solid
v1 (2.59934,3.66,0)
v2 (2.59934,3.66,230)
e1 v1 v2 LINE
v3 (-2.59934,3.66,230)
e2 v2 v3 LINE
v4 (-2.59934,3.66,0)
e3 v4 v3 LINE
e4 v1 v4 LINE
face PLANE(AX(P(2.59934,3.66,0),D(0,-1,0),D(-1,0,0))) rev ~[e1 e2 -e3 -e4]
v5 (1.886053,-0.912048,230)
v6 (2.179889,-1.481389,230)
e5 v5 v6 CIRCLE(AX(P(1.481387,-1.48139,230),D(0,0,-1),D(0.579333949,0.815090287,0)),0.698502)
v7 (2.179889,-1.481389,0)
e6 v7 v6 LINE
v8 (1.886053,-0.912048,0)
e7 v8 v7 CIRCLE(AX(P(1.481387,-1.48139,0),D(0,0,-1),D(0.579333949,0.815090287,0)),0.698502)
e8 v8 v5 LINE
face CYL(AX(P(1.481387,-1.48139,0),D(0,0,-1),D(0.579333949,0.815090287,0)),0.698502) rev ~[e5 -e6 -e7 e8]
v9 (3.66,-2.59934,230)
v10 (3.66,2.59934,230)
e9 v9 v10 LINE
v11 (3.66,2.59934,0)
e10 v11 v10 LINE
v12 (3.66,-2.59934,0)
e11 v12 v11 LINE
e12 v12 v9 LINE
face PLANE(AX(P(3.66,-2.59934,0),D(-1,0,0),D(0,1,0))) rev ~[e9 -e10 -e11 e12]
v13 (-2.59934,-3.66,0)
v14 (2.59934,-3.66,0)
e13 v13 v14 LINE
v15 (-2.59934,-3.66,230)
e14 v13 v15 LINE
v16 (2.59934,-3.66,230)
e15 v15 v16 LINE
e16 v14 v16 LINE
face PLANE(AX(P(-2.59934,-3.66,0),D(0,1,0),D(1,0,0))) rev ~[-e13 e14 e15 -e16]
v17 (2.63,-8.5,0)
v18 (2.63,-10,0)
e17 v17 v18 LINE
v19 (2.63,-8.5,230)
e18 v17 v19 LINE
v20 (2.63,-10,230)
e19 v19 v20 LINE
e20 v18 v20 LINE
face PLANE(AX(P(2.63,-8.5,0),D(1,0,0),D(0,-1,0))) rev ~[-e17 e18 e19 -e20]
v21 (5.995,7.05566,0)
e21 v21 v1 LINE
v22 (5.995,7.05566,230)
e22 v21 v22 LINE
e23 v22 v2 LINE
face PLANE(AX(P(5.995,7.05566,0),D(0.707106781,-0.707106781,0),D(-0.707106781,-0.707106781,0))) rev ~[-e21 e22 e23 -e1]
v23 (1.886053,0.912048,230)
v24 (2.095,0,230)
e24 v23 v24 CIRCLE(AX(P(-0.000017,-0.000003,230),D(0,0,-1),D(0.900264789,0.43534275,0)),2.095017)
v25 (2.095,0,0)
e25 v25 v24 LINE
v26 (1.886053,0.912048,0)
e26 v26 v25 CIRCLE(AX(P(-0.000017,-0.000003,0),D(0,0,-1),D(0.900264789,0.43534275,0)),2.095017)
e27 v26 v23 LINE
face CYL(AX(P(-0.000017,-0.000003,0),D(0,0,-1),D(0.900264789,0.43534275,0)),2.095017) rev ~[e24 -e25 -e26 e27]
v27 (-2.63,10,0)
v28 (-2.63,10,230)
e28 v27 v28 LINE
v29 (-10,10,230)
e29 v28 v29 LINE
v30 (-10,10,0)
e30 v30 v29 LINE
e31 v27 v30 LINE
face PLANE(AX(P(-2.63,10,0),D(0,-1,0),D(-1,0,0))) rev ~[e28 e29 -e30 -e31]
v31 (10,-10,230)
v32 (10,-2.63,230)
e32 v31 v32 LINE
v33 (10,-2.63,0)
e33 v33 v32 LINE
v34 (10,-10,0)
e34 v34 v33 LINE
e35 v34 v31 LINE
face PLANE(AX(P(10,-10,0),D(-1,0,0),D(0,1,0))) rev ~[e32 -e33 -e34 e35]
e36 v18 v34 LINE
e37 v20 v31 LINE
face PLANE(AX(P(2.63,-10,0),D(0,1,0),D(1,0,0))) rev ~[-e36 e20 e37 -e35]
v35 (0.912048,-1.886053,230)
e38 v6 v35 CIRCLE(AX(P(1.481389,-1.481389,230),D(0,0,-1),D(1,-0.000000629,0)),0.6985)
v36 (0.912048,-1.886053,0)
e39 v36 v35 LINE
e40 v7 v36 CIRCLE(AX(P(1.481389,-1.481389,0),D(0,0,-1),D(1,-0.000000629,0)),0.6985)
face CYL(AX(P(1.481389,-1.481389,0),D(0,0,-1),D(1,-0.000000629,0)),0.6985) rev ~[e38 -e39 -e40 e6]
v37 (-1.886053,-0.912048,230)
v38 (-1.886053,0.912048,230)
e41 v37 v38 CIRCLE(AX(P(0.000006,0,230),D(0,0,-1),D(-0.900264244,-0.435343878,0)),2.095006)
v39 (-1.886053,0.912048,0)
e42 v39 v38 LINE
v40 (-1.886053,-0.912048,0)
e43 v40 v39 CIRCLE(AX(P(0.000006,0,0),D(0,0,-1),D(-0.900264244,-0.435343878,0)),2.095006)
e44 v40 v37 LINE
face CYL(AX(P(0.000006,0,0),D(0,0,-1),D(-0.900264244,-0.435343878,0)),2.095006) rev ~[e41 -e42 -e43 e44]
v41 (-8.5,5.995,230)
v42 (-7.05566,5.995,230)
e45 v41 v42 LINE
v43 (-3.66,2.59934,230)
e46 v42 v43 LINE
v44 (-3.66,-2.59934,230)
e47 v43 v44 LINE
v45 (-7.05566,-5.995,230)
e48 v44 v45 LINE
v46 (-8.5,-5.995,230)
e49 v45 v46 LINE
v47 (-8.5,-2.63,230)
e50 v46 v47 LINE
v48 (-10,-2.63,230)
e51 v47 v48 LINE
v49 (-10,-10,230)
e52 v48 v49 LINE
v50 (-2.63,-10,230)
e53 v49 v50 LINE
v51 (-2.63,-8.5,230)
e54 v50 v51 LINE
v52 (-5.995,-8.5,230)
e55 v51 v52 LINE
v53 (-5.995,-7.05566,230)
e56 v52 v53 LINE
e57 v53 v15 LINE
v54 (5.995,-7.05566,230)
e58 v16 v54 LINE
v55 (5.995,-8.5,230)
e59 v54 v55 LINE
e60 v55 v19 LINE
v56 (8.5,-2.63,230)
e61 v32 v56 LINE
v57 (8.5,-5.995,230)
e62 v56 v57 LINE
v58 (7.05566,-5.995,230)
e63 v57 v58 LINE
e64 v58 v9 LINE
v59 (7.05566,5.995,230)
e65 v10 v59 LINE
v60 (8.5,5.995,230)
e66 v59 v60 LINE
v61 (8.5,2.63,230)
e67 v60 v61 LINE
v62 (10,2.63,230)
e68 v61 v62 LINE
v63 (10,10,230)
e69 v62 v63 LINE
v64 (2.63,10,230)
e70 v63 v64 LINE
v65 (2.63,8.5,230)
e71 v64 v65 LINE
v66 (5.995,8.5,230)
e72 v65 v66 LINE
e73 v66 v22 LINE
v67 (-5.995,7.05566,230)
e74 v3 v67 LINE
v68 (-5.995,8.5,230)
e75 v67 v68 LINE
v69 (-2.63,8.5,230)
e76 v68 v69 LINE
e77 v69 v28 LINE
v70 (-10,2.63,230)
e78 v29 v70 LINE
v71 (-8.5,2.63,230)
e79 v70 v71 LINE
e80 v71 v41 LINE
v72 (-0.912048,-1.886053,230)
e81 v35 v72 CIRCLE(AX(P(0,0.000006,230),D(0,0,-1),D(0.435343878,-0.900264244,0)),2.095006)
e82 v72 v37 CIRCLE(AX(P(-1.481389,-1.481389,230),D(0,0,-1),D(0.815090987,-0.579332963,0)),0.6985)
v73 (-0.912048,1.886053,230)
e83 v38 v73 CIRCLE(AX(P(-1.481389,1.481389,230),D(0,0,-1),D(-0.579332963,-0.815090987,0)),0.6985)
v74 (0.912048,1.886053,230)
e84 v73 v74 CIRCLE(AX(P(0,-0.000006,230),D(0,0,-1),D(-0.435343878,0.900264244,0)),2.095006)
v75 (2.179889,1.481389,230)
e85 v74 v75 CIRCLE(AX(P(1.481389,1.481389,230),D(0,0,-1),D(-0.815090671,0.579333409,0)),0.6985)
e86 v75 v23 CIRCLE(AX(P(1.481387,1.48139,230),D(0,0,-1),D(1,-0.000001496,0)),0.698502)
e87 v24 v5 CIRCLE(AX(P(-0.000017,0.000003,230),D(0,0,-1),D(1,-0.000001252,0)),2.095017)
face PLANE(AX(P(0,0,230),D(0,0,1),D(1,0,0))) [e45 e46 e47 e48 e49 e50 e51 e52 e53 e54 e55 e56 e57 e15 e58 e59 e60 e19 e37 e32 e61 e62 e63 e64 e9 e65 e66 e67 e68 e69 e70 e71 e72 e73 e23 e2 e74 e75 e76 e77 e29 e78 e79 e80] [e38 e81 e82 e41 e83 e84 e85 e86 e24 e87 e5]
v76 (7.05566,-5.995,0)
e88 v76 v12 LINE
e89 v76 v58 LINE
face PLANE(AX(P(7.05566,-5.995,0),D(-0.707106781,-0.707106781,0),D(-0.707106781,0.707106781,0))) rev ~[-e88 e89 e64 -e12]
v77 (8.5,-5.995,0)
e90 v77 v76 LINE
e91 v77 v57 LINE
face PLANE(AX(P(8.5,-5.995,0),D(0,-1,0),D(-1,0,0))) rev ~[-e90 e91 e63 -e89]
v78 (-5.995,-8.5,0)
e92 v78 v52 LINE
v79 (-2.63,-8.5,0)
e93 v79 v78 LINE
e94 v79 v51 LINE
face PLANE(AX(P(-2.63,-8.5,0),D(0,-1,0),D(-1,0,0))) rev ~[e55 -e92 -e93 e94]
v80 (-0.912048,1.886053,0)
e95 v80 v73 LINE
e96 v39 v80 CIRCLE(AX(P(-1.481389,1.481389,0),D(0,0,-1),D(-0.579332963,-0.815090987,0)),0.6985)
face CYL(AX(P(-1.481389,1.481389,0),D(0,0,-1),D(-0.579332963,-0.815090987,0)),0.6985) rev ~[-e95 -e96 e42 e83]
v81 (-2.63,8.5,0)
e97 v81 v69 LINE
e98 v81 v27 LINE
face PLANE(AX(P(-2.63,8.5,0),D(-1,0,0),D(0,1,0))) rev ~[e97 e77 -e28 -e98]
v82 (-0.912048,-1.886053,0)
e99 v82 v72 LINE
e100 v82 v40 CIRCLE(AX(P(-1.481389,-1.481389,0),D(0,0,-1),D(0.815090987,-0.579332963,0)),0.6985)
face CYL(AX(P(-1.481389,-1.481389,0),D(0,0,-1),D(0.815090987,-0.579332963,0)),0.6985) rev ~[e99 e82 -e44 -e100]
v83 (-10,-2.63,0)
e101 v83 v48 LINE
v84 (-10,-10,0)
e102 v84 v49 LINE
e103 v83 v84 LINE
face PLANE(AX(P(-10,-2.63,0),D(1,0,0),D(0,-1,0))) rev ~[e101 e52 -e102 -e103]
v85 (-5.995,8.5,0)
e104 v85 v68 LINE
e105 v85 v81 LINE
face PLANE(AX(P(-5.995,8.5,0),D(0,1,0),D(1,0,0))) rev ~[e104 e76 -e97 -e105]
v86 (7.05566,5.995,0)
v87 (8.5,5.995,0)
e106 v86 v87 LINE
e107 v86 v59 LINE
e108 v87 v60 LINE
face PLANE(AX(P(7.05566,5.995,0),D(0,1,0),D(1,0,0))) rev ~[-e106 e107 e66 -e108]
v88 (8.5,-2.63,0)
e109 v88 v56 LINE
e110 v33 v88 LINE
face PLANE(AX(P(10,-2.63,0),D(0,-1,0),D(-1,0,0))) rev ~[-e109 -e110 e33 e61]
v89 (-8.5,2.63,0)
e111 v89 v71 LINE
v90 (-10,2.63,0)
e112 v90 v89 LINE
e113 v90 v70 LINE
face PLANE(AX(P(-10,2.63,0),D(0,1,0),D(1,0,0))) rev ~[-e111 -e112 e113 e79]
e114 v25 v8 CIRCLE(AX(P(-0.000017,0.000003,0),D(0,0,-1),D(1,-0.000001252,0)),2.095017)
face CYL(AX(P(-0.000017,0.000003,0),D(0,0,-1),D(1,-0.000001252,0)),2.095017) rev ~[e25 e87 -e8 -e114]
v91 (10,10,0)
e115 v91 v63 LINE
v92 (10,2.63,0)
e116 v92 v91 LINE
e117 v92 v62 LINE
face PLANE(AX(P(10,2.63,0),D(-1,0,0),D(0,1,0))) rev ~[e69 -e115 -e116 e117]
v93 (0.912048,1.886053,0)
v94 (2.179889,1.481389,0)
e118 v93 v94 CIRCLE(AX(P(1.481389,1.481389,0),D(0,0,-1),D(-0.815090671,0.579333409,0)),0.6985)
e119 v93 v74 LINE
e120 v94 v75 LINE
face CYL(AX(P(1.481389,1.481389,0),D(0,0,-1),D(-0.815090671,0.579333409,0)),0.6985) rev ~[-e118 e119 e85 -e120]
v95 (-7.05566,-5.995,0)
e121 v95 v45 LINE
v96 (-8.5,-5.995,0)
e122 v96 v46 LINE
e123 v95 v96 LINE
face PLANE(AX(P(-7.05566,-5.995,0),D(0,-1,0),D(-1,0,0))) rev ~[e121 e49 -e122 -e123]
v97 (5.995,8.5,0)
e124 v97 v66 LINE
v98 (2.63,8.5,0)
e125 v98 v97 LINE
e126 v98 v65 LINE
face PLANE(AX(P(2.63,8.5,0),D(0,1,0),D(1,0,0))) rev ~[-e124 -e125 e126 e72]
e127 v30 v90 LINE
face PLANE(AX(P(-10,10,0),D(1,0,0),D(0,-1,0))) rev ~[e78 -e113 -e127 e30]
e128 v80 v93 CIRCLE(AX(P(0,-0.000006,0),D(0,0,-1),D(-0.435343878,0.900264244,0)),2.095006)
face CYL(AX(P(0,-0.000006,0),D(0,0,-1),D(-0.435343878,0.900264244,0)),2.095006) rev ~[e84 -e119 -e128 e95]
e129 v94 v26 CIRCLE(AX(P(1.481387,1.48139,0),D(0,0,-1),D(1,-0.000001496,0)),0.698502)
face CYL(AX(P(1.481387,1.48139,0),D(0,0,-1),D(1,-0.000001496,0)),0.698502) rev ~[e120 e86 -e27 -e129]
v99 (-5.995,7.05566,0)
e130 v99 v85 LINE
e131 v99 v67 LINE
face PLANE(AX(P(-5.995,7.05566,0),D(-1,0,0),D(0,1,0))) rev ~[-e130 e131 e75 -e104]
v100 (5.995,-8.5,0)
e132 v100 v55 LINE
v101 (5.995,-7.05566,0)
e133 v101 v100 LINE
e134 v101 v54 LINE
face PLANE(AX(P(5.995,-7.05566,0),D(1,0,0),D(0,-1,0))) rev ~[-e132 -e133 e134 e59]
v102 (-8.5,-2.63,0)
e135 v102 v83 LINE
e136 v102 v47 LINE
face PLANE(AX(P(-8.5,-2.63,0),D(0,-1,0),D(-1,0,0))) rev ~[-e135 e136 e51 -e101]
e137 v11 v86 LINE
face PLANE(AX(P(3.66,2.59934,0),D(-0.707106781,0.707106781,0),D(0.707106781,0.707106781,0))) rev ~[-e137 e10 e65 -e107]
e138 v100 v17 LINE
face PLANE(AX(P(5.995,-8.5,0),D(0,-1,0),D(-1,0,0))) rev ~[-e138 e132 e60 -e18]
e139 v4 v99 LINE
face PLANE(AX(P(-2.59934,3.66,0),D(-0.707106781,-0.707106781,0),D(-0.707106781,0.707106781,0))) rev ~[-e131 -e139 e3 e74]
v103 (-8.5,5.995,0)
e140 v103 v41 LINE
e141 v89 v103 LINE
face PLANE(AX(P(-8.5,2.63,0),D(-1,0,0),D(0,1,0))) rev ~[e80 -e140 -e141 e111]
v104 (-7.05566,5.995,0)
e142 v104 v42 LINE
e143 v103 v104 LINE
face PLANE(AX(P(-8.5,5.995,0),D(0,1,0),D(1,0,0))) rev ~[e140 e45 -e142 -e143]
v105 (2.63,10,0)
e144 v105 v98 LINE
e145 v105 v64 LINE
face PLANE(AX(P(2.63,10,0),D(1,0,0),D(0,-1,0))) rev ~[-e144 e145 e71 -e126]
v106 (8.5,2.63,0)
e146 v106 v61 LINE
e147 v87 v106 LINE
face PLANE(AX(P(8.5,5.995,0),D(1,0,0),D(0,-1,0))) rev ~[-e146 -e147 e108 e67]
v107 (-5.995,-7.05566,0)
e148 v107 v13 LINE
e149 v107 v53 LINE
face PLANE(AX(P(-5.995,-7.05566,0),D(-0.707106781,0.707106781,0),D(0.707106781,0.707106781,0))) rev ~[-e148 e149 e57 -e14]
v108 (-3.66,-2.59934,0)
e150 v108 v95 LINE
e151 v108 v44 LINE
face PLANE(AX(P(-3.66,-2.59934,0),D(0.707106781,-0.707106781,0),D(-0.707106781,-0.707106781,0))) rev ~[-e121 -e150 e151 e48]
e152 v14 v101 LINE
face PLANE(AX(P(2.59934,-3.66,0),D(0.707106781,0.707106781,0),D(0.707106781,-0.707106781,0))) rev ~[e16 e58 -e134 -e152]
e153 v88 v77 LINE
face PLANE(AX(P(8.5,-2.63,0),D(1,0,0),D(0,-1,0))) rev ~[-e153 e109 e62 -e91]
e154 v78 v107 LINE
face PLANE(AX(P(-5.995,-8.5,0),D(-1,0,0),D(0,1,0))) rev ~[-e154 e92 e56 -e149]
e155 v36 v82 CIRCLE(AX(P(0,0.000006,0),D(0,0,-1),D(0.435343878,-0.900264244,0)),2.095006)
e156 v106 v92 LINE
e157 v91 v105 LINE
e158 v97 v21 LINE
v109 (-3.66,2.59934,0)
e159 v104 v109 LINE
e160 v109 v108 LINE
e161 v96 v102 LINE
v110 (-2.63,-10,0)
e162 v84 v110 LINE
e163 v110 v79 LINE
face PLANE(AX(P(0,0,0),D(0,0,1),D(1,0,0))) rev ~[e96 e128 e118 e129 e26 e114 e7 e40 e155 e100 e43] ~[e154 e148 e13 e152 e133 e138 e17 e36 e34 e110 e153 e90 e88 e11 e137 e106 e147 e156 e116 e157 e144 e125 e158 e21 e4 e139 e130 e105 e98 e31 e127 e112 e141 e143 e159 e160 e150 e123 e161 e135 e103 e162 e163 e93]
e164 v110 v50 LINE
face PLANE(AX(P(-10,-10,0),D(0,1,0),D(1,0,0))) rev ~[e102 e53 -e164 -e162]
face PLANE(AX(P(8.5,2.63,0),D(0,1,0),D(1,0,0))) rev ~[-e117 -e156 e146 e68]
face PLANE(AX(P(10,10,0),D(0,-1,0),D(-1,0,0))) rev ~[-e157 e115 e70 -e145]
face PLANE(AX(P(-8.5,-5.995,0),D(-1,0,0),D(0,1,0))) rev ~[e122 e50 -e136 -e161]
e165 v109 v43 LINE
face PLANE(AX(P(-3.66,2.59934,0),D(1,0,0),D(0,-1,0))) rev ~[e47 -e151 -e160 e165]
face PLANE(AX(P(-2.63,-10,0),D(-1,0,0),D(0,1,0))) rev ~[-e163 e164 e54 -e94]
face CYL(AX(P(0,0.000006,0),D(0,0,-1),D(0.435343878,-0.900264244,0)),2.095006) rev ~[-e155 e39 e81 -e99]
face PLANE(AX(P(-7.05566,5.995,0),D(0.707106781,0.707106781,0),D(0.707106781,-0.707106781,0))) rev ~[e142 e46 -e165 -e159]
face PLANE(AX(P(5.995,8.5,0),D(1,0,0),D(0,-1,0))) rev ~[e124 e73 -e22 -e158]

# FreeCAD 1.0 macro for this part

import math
import FreeCAD as App
import Part
import Sketcher
from FreeCAD import Vector


def add_polygon(sketch, points):
    """Adds a closed chain of lines whose ends are joined by coincident constraints."""
    first, n = sketch.GeometryCount, len(points)
    for a, b in zip(points, points[1:] + points[:1]):
        sketch.addGeometry(Part.LineSegment(App.Vector(*a, 0), App.Vector(*b, 0)), False)
    for i in range(n):
        sketch.addConstraint(Sketcher.Constraint("Coincident", first + i, 2, first + (i + 1) % n, 1))

doc = App.newDocument("Part")
body = doc.addObject("PartDesign::Body", "Body")

# Sketch on XY plane
sketch1 = body.newObject("Sketcher::SketchObject", "Sketch")
sketch1.AttachmentSupport = (doc.getObject("XY_Plane"), [""])
sketch1.MapMode = "FlatFace"
add_polygon(sketch1, [(10, 2.6), (10, 10), (2.6, 10), (2.6, 8.5), (6, 8.5), (6, 7.1), (2.6, 3.7), (-2.6, 3.7), (-6, 7.1), (-6, 8.5), (-2.6, 8.5), (-2.6, 10), (-10, 10), (-10, 2.6), (-8.5, 2.6), (-8.5, 6), (-7.1, 6), (-3.7, 2.6), (-3.7, -2.6), (-7.1, -6), (-8.5, -6), (-8.5, -2.6), (-10, -2.6), (-10, -10), (-2.6, -10), (-2.6, -8.5), (-6, -8.5), (-6, -7.1), (-2.6, -3.7), (2.6, -3.7), (6, -7.1), (6, -8.5), (2.6, -8.5), (2.6, -10), (10, -10), (10, -2.6), (8.5, -2.6), (8.5, -6), (7.1, -6), (3.7, -2.6), (3.7, 2.6), (7.1, 6), (8.5, 6), (8.5, 2.6)])  # lines 0-43
sketch1.addGeometry(Part.ArcOfCircle(Part.Circle(Vector(1.5, 1.5, 0), Vector(0, 0, 1), 0.7), math.radians(-55), math.radians(0)), False)  # 44
sketch1.addGeometry(Part.ArcOfCircle(Part.Circle(Vector(0, 0, 0), Vector(0, 0, 1), 2.1), math.radians(0), math.radians(26)), False)  # 45
sketch1.addGeometry(Part.ArcOfCircle(Part.Circle(Vector(0, 0, 0), Vector(0, 0, 1), 2.1), math.radians(-26), math.radians(0)), False)  # 46
sketch1.addGeometry(Part.ArcOfCircle(Part.Circle(Vector(1.5, -1.5, 0), Vector(0, 0, 1), 0.7), math.radians(0), math.radians(55)), False)  # 47
sketch1.addGeometry(Part.ArcOfCircle(Part.Circle(Vector(1.5, -1.5, 0), Vector(0, 0, 1), 0.7), math.radians(-145), math.radians(0)), False)  # 48
sketch1.addGeometry(Part.ArcOfCircle(Part.Circle(Vector(0, 0, 0), Vector(0, 0, 1), 2.1), math.radians(-116), math.radians(-64)), False)  # 49
sketch1.addGeometry(Part.ArcOfCircle(Part.Circle(Vector(-1.5, -1.5, 0), Vector(0, 0, 1), 0.7), math.radians(125), math.radians(325)), False)  # 50
sketch1.addGeometry(Part.ArcOfCircle(Part.Circle(Vector(0, 0, 0), Vector(0, 0, 1), 2.1), math.radians(154), math.radians(206)), False)  # 51
sketch1.addGeometry(Part.ArcOfCircle(Part.Circle(Vector(-1.5, 1.5, 0), Vector(0, 0, 1), 0.7), math.radians(35), math.radians(235)), False)  # 52
sketch1.addGeometry(Part.ArcOfCircle(Part.Circle(Vector(0, 0, 0), Vector(0, 0, 1), 2.1), math.radians(64), math.radians(116)), False)  # 53
sketch1.addGeometry(Part.ArcOfCircle(Part.Circle(Vector(1.5, 1.5, 0), Vector(0, 0, 1), 0.7), math.radians(0), math.radians(145)), False)  # 54
sketch1.addConstraint([
    Sketcher.Constraint("Coincident", 44, 1, 45, 2),
    Sketcher.Constraint("Coincident", 45, 1, 46, 2),
    Sketcher.Constraint("Coincident", 46, 1, 47, 2),
    Sketcher.Constraint("Coincident", 47, 1, 48, 2),
    Sketcher.Constraint("Coincident", 48, 1, 49, 2),
    Sketcher.Constraint("Coincident", 49, 1, 50, 2),
    Sketcher.Constraint("Coincident", 50, 1, 51, 2),
    Sketcher.Constraint("Coincident", 51, 1, 52, 2),
    Sketcher.Constraint("Coincident", 52, 1, 53, 2),
    Sketcher.Constraint("Coincident", 53, 1, 54, 2),
    Sketcher.Constraint("Coincident", 54, 1, 44, 2),
    Sketcher.Constraint("Vertical", 0),
    Sketcher.Constraint("Horizontal", 1),
    Sketcher.Constraint("Vertical", 2),
    Sketcher.Constraint("Horizontal", 3),
    Sketcher.Constraint("Vertical", 4),
    Sketcher.Constraint("Horizontal", 6),
    Sketcher.Constraint("Vertical", 8),
    Sketcher.Constraint("Horizontal", 9),
    Sketcher.Constraint("Vertical", 10),
    Sketcher.Constraint("Horizontal", 11),
    Sketcher.Constraint("Vertical", 12),
    Sketcher.Constraint("Horizontal", 13),
    Sketcher.Constraint("Vertical", 14),
    Sketcher.Constraint("Horizontal", 15),
    Sketcher.Constraint("Vertical", 17),
    Sketcher.Constraint("Horizontal", 19),
    Sketcher.Constraint("Vertical", 20),
    Sketcher.Constraint("Horizontal", 21),
    Sketcher.Constraint("Vertical", 22),
    Sketcher.Constraint("Horizontal", 23),
    Sketcher.Constraint("Vertical", 24),
    Sketcher.Constraint("Horizontal", 25),
    Sketcher.Constraint("Vertical", 26),
    Sketcher.Constraint("Horizontal", 28),
    Sketcher.Constraint("Vertical", 30),
    Sketcher.Constraint("Horizontal", 31),
    Sketcher.Constraint("Vertical", 32),
    Sketcher.Constraint("Horizontal", 33),
    Sketcher.Constraint("Vertical", 34),
    Sketcher.Constraint("Horizontal", 35),
    Sketcher.Constraint("Vertical", 36),
    Sketcher.Constraint("Horizontal", 37),
    Sketcher.Constraint("Vertical", 39),
    Sketcher.Constraint("Horizontal", 41),
    Sketcher.Constraint("Vertical", 42),
    Sketcher.Constraint("Horizontal", 43),
    Sketcher.Constraint("Coincident", 49, 3, -1, 1),
    Sketcher.Constraint("Coincident", 51, 3, -1, 1),
    Sketcher.Constraint("Coincident", 53, 3, -1, 1),
    Sketcher.Constraint("Coincident", 46, 3, 45, 3),
    Sketcher.Constraint("Coincident", 48, 3, 47, 3),
    Sketcher.Constraint("Coincident", 54, 3, 44, 3),
    Sketcher.Constraint("Equal", 44, 47),
    Sketcher.Constraint("Equal", 48, 50),
    Sketcher.Constraint("Equal", 49, 51),
    Sketcher.Constraint("Equal", 50, 52),
    Sketcher.Constraint("Equal", 51, 53),
    Sketcher.Constraint("Symmetric", 44, 3, 50, 3, -1, 1),
    Sketcher.Constraint("Symmetric", 47, 3, 52, 3, -1, 1),
    Sketcher.Constraint("Symmetric", 0, 2, 22, 2, -1, 1),
    Sketcher.Constraint("Symmetric", 2, 2, 24, 2, -1, 1),
    Sketcher.Constraint("Symmetric", 4, 2, 26, 2, -1, 1),
    Sketcher.Constraint("Symmetric", 5, 2, 27, 2, -1, 1),
    Sketcher.Constraint("Symmetric", 7, 2, 29, 2, -1, 1),
    Sketcher.Constraint("Symmetric", 9, 2, 31, 2, -1, 1),
    Sketcher.Constraint("Symmetric", 11, 2, 33, 2, -1, 1),
    Sketcher.Constraint("Symmetric", 13, 2, 35, 2, -1, 1),
    Sketcher.Constraint("Symmetric", 15, 2, 37, 2, -1, 1),
    Sketcher.Constraint("Symmetric", 16, 2, 38, 2, -1, 1),
    Sketcher.Constraint("Symmetric", 18, 2, 40, 2, -1, 1),
    Sketcher.Constraint("Symmetric", 20, 2, 42, 2, -1, 1),
    Sketcher.Constraint("Symmetric", 47, 3, 50, 3, -2),
    Sketcher.Constraint("Symmetric", 4, 2, 7, 2, -2),
    Sketcher.Constraint("Symmetric", 2, 2, 9, 2, -2),
    Sketcher.Constraint("Symmetric", 0, 2, 11, 2, -2),
    Sketcher.Constraint("Symmetric", 20, 2, 35, 2, -2),
    Sketcher.Constraint("Symmetric", 18, 2, 37, 2, -2),
    Sketcher.Constraint("PointOnObject", 45, 1, -1),
    Sketcher.Constraint("Perpendicular", 5, 7),
    Sketcher.Constraint("Parallel", 7, 16),
    Sketcher.Constraint("Perpendicular", 16, 18),
    Sketcher.Constraint("Perpendicular", 27, 29),
    Sketcher.Constraint("Perpendicular", 38, 40),
    Sketcher.Constraint("Horizontal", 17, 2, 38, 2),
    Sketcher.Constraint("Horizontal", 50, 3, 47, 1),
    Sketcher.Constraint("Horizontal", 46, 1, 50, 1),
    Sketcher.Constraint("Horizontal", 44, 1, 51, 1),
    Sketcher.Constraint("Horizontal", 52, 3, 54, 1),
    Sketcher.Constraint("Equal", 33, 0),
    Sketcher.Constraint("Equal", 43, 2),
    Sketcher.Constraint("Equal", 41, 4),
    Sketcher.Constraint("Equal", 31, 14),
    Sketcher.Constraint("Equal", 28, 17),
    Sketcher.Constraint("Equal", 7, 16),
    Sketcher.Constraint("DistanceX", 13, 1, 13, 2, 1.5),
    Sketcher.Constraint("DistanceX", -1, 1, 0, 2, 10.0),
    Sketcher.Constraint("DistanceX", 1, 2, 1, 1, 7.37),
    Sketcher.Constraint("Radius", 44, 0.698502),
    Sketcher.Constraint("DistanceX", 3, 1, 3, 2, 3.365),
    Sketcher.Constraint("DistanceY", -1, 1, 5, 2, 3.66),
    Sketcher.Constraint("DistanceX", -1, 1, 45, 1, 2.095),
    Sketcher.Constraint("Radius", 45, 2.095017),
    Sketcher.Constraint("DistanceX", 6, 2, 6, 1, 5.19868),
    Sketcher.Constraint("DistanceY", -1, 1, 44, 3, 1.48139),
    Sketcher.Constraint("DistanceX", -1, 1, 48, 3, 1.481389),
])
pad1 = body.newObject("PartDesign::Pad", "Pad")
pad1.Profile = sketch1
pad1.Length = 230

doc.recompute()
